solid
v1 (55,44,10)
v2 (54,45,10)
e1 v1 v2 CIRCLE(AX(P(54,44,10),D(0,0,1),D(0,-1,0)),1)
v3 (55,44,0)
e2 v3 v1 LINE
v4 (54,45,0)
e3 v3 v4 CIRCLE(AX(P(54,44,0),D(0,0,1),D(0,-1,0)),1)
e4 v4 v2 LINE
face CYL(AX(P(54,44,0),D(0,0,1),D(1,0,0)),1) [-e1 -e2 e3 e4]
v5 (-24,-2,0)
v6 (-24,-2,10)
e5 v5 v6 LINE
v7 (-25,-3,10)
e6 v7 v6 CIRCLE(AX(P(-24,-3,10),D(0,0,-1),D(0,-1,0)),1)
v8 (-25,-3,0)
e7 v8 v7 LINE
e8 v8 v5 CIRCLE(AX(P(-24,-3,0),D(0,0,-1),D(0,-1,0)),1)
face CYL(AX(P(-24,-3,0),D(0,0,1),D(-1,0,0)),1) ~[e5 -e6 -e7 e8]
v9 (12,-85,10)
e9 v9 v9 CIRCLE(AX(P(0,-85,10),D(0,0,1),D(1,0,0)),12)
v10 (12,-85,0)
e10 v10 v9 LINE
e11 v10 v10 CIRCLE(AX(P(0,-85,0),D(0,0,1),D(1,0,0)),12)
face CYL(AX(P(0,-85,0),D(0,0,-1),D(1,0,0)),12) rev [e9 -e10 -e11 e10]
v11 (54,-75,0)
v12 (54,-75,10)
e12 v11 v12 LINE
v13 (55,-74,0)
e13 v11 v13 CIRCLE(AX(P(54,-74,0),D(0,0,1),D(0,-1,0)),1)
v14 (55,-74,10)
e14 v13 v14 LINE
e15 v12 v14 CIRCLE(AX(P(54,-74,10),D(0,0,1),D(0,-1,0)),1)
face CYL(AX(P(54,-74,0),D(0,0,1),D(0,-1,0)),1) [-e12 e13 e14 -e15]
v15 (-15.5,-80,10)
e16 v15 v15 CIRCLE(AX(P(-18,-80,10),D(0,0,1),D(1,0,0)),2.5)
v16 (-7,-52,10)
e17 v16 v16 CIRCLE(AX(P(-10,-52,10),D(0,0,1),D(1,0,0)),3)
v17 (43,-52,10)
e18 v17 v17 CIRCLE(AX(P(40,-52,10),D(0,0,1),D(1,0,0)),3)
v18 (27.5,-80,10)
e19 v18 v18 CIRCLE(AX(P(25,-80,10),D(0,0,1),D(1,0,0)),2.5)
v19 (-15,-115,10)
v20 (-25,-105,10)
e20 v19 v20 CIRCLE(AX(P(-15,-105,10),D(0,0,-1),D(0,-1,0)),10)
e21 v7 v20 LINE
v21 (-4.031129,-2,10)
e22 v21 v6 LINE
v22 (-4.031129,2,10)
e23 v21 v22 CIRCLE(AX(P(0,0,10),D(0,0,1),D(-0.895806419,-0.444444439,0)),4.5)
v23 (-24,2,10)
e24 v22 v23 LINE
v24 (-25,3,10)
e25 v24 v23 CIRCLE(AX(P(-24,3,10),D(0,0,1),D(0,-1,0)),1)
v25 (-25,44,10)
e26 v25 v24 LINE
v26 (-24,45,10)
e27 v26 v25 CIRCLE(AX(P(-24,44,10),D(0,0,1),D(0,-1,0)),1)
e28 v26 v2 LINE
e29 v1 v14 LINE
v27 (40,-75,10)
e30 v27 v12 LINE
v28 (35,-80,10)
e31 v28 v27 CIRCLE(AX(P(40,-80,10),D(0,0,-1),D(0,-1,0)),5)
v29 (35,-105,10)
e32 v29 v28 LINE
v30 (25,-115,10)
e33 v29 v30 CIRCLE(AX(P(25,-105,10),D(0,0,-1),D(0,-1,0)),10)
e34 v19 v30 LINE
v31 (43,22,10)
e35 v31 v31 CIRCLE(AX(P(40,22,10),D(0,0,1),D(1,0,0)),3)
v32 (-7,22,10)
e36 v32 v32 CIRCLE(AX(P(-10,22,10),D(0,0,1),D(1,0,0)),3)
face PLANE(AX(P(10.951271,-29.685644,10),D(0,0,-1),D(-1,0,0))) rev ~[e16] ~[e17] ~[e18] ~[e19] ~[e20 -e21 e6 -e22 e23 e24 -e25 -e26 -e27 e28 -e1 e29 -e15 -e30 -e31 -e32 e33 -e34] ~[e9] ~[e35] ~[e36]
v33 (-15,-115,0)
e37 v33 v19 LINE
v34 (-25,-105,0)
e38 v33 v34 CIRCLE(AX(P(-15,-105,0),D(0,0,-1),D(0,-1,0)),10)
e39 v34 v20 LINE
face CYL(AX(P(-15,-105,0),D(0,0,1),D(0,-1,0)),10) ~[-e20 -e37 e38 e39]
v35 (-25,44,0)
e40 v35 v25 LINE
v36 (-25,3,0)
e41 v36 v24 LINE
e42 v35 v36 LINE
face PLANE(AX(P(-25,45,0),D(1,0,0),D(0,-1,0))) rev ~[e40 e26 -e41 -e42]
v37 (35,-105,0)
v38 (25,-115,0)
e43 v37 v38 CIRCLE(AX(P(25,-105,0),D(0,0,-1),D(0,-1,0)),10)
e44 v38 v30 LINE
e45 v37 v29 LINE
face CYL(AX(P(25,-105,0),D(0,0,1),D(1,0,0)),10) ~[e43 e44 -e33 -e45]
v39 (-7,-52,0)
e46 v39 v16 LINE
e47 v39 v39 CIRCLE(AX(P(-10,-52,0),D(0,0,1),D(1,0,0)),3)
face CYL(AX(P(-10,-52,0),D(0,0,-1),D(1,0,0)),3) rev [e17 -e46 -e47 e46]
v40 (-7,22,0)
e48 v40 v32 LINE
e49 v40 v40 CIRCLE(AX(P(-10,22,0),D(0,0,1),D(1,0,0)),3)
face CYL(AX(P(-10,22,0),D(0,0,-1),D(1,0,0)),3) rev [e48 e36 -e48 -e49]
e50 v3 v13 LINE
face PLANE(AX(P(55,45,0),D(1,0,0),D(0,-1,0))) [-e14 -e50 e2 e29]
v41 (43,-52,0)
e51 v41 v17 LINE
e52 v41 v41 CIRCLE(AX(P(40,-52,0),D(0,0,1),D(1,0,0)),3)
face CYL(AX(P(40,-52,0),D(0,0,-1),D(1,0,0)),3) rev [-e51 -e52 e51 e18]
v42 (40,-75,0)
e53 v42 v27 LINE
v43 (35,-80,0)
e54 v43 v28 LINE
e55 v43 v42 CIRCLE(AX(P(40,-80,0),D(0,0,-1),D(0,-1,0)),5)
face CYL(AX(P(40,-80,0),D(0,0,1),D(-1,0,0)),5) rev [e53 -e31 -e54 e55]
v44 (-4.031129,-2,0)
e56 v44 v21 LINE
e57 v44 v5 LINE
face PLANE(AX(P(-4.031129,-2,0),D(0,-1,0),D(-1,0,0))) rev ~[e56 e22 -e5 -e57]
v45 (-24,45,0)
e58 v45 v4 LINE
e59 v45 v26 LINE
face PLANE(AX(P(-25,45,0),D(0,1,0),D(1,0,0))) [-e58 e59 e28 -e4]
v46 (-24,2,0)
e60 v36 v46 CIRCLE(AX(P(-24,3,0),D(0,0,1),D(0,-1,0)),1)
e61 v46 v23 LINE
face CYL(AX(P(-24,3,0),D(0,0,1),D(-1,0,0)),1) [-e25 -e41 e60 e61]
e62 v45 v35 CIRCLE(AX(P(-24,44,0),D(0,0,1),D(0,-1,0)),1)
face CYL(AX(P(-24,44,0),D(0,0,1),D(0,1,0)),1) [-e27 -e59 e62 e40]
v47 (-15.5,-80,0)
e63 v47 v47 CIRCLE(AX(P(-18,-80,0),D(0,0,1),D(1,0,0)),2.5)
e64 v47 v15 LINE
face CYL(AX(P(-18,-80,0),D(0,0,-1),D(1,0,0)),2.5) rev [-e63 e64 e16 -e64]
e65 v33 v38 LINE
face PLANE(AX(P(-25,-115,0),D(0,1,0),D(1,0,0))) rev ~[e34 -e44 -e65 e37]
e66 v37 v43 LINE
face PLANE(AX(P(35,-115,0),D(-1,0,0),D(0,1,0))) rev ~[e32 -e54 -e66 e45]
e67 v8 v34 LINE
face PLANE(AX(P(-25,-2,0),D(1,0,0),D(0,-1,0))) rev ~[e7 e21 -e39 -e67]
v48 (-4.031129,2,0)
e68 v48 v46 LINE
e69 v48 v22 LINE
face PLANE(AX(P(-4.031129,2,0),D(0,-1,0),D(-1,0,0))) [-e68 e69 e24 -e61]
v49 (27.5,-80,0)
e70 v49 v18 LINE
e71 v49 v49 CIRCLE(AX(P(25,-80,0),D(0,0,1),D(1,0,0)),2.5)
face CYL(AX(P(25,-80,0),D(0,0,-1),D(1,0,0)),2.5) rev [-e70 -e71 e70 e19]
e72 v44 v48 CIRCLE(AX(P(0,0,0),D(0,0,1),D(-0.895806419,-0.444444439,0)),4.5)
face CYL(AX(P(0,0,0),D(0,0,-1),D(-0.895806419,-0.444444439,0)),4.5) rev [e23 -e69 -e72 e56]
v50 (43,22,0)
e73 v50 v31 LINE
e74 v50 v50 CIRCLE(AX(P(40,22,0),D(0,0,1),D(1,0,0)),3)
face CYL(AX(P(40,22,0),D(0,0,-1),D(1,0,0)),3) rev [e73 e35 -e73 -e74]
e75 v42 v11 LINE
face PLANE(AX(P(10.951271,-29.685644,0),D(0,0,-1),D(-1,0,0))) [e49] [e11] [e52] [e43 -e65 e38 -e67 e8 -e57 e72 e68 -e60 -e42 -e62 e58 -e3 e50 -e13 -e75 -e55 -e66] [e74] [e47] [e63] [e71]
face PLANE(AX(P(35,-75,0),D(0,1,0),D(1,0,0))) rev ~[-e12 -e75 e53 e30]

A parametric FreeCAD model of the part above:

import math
import FreeCAD as App
import Part
import Sketcher
Q = App.Units.Quantity


def edges_at(feature, points):
    """Names of the edges that pass closest to the given points."""
    edges = feature.Shape.Edges
    near = lambda p: min(range(len(edges)), key=lambda i: edges[i].distToShape(Part.Vertex(*p))[0])
    return sorted({f"Edge{near(p) + 1}" for p in points})

doc = App.newDocument("Part")
body = doc.addObject("PartDesign::Body", "Body")

# Sketch on XY plane
sketch1 = body.newObject("Sketcher::SketchObject", "Sketch")
sketch1.AttachmentSupport = (doc.getObject("XY_Plane"), [""])
sketch1.MapMode = "FlatFace"
sketch1.addGeometry([
    Part.ArcOfCircle(Part.Circle(App.Vector(0, 0, 0), App.Vector(0, 0, 1), 4.5), math.radians(-154), math.radians(154)),  # 0
    Part.LineSegment(App.Vector(-4, -2, 0), App.Vector(-25, -2, 0)),  # 1
    Part.LineSegment(App.Vector(-25, -2, 0), App.Vector(-25, -115, 0)),  # 2
    Part.LineSegment(App.Vector(-25, -115, 0), App.Vector(35, -115, 0)),  # 3
    Part.LineSegment(App.Vector(35, -115, 0), App.Vector(35, -75, 0)),  # 4
    Part.LineSegment(App.Vector(35, -75, 0), App.Vector(55, -75, 0)),  # 5
    Part.LineSegment(App.Vector(55, -75, 0), App.Vector(55, 45, 0)),  # 6
    Part.LineSegment(App.Vector(55, 45, 0), App.Vector(-25, 45, 0)),  # 7
    Part.LineSegment(App.Vector(-25, 45, 0), App.Vector(-25, 2, 0)),  # 8
    Part.LineSegment(App.Vector(-25, 2, 0), App.Vector(-4, 2, 0)),  # 9
    Part.Circle(App.Vector(25, -80, 0), App.Vector(0, 0, 1), 2.5),  # 10
    Part.Circle(App.Vector(40, -52, 0), App.Vector(0, 0, 1), 3),  # 11
    Part.Circle(App.Vector(0, -85, 0), App.Vector(0, 0, 1), 12),  # 12
    Part.Circle(App.Vector(-18, -80, 0), App.Vector(0, 0, 1), 2.5),  # 13
    Part.Circle(App.Vector(-10, -52, 0), App.Vector(0, 0, 1), 3),  # 14
    Part.Circle(App.Vector(40, 22, 0), App.Vector(0, 0, 1), 3),  # 15
    Part.Circle(App.Vector(-10, 22, 0), App.Vector(0, 0, 1), 3),  # 16
], False)
sketch1.addConstraint([
    Sketcher.Constraint("Coincident", 0, 1, 1, 1),
    Sketcher.Constraint("Coincident", 1, 2, 2, 1),
    Sketcher.Constraint("Coincident", 2, 2, 3, 1),
    Sketcher.Constraint("Coincident", 3, 2, 4, 1),
    Sketcher.Constraint("Coincident", 4, 2, 5, 1),
    Sketcher.Constraint("Coincident", 5, 2, 6, 1),
    Sketcher.Constraint("Coincident", 6, 2, 7, 1),
    Sketcher.Constraint("Coincident", 7, 2, 8, 1),
    Sketcher.Constraint("Coincident", 8, 2, 9, 1),
    Sketcher.Constraint("Coincident", 9, 2, 0, 2),
    Sketcher.Constraint("Horizontal", 1),
    Sketcher.Constraint("Vertical", 2),
    Sketcher.Constraint("Horizontal", 3),
    Sketcher.Constraint("Vertical", 4),
    Sketcher.Constraint("Horizontal", 5),
    Sketcher.Constraint("Vertical", 6),
    Sketcher.Constraint("Horizontal", 7),
    Sketcher.Constraint("Vertical", 8),
    Sketcher.Constraint("Horizontal", 9),
    Sketcher.Constraint("Coincident", 0, 3, -1, 1),
    Sketcher.Constraint("Equal", 10, 13),
    Sketcher.Constraint("Equal", 11, 14),
    Sketcher.Constraint("Equal", 14, 15),
    Sketcher.Constraint("Equal", 15, 16),
    Sketcher.Constraint("Symmetric", 1, 2, 8, 2, -1),
    Sketcher.Constraint("PointOnObject", 12, 3, -2),
    Sketcher.Constraint("Horizontal", 10, 3, 13, 3),
    Sketcher.Constraint("Horizontal", 11, 3, 14, 3),
    Sketcher.Constraint("Horizontal", 15, 3, 16, 3),
    Sketcher.Constraint("Vertical", 11, 3, 15, 3),
    Sketcher.Constraint("Vertical", 14, 3, 16, 3),
    Sketcher.Constraint("Diameter", 10, Q("5 mm")),
    Sketcher.Constraint("Diameter", 11, Q("6 mm")),
    Sketcher.Constraint("Diameter", 12, Q("24 mm")),
    Sketcher.Constraint("Radius", 0, Q("4.5 mm")),
    Sketcher.Constraint("DistanceX", 3, 1, 3, 2, Q("60 mm")),
    Sketcher.Constraint("DistanceX", 5, 1, 5, 2, Q("20 mm")),
    Sketcher.Constraint("DistanceY", 2, 2, 2, 1, Q("113 mm")),
    Sketcher.Constraint("DistanceY", 4, 1, 4, 2, Q("40 mm")),
    Sketcher.Constraint("DistanceY", 6, 1, 6, 2, Q("120 mm")),
    Sketcher.Constraint("DistanceY", 8, 2, 8, 1, Q("43 mm")),
    Sketcher.Constraint("DistanceX", -1, 1, 10, 3, Q("25 mm")),
    Sketcher.Constraint("DistanceY", 10, 3, -1, 1, Q("80 mm")),
    Sketcher.Constraint("DistanceX", -1, 1, 11, 3, Q("40 mm")),
    Sketcher.Constraint("DistanceY", 11, 3, -1, 1, Q("52 mm")),
    Sketcher.Constraint("DistanceY", 12, 3, -1, 1, Q("85 mm")),
    Sketcher.Constraint("DistanceX", 13, 3, -1, 1, Q("18 mm")),
    Sketcher.Constraint("DistanceX", 14, 3, -1, 1, Q("10 mm")),
    Sketcher.Constraint("DistanceY", -1, 1, 15, 3, Q("22 mm")),
    Sketcher.Constraint("DistanceX", 1, 2, -1, 1, Q("25 mm")),
])
pad1 = body.newObject("PartDesign::Pad", "Pad")
pad1.Profile = sketch1
pad1.Length = 10
doc.recompute()

fillet = body.newObject("PartDesign::Fillet", "Fillet")
fillet.Base = (pad1, edges_at(pad1, [(35, -75, 5)]))
fillet.Radius = 5
doc.recompute()

fillet2 = body.newObject("PartDesign::Fillet", "Fillet001")
fillet2.Base = (fillet, edges_at(fillet, [
    (55, -75, 5),
    (55, 45, 5),
    (-25, 2, 5),
    (-25, -2, 5),
    (-25, 45, 5),
]))
fillet2.Radius = 1
doc.recompute()

fillet3 = body.newObject("PartDesign::Fillet", "Fillet002")
fillet3.Base = (fillet2, edges_at(fillet2, [(-25, -115, 5), (35, -115, 5)]))
fillet3.Radius = 10

doc.recompute()
